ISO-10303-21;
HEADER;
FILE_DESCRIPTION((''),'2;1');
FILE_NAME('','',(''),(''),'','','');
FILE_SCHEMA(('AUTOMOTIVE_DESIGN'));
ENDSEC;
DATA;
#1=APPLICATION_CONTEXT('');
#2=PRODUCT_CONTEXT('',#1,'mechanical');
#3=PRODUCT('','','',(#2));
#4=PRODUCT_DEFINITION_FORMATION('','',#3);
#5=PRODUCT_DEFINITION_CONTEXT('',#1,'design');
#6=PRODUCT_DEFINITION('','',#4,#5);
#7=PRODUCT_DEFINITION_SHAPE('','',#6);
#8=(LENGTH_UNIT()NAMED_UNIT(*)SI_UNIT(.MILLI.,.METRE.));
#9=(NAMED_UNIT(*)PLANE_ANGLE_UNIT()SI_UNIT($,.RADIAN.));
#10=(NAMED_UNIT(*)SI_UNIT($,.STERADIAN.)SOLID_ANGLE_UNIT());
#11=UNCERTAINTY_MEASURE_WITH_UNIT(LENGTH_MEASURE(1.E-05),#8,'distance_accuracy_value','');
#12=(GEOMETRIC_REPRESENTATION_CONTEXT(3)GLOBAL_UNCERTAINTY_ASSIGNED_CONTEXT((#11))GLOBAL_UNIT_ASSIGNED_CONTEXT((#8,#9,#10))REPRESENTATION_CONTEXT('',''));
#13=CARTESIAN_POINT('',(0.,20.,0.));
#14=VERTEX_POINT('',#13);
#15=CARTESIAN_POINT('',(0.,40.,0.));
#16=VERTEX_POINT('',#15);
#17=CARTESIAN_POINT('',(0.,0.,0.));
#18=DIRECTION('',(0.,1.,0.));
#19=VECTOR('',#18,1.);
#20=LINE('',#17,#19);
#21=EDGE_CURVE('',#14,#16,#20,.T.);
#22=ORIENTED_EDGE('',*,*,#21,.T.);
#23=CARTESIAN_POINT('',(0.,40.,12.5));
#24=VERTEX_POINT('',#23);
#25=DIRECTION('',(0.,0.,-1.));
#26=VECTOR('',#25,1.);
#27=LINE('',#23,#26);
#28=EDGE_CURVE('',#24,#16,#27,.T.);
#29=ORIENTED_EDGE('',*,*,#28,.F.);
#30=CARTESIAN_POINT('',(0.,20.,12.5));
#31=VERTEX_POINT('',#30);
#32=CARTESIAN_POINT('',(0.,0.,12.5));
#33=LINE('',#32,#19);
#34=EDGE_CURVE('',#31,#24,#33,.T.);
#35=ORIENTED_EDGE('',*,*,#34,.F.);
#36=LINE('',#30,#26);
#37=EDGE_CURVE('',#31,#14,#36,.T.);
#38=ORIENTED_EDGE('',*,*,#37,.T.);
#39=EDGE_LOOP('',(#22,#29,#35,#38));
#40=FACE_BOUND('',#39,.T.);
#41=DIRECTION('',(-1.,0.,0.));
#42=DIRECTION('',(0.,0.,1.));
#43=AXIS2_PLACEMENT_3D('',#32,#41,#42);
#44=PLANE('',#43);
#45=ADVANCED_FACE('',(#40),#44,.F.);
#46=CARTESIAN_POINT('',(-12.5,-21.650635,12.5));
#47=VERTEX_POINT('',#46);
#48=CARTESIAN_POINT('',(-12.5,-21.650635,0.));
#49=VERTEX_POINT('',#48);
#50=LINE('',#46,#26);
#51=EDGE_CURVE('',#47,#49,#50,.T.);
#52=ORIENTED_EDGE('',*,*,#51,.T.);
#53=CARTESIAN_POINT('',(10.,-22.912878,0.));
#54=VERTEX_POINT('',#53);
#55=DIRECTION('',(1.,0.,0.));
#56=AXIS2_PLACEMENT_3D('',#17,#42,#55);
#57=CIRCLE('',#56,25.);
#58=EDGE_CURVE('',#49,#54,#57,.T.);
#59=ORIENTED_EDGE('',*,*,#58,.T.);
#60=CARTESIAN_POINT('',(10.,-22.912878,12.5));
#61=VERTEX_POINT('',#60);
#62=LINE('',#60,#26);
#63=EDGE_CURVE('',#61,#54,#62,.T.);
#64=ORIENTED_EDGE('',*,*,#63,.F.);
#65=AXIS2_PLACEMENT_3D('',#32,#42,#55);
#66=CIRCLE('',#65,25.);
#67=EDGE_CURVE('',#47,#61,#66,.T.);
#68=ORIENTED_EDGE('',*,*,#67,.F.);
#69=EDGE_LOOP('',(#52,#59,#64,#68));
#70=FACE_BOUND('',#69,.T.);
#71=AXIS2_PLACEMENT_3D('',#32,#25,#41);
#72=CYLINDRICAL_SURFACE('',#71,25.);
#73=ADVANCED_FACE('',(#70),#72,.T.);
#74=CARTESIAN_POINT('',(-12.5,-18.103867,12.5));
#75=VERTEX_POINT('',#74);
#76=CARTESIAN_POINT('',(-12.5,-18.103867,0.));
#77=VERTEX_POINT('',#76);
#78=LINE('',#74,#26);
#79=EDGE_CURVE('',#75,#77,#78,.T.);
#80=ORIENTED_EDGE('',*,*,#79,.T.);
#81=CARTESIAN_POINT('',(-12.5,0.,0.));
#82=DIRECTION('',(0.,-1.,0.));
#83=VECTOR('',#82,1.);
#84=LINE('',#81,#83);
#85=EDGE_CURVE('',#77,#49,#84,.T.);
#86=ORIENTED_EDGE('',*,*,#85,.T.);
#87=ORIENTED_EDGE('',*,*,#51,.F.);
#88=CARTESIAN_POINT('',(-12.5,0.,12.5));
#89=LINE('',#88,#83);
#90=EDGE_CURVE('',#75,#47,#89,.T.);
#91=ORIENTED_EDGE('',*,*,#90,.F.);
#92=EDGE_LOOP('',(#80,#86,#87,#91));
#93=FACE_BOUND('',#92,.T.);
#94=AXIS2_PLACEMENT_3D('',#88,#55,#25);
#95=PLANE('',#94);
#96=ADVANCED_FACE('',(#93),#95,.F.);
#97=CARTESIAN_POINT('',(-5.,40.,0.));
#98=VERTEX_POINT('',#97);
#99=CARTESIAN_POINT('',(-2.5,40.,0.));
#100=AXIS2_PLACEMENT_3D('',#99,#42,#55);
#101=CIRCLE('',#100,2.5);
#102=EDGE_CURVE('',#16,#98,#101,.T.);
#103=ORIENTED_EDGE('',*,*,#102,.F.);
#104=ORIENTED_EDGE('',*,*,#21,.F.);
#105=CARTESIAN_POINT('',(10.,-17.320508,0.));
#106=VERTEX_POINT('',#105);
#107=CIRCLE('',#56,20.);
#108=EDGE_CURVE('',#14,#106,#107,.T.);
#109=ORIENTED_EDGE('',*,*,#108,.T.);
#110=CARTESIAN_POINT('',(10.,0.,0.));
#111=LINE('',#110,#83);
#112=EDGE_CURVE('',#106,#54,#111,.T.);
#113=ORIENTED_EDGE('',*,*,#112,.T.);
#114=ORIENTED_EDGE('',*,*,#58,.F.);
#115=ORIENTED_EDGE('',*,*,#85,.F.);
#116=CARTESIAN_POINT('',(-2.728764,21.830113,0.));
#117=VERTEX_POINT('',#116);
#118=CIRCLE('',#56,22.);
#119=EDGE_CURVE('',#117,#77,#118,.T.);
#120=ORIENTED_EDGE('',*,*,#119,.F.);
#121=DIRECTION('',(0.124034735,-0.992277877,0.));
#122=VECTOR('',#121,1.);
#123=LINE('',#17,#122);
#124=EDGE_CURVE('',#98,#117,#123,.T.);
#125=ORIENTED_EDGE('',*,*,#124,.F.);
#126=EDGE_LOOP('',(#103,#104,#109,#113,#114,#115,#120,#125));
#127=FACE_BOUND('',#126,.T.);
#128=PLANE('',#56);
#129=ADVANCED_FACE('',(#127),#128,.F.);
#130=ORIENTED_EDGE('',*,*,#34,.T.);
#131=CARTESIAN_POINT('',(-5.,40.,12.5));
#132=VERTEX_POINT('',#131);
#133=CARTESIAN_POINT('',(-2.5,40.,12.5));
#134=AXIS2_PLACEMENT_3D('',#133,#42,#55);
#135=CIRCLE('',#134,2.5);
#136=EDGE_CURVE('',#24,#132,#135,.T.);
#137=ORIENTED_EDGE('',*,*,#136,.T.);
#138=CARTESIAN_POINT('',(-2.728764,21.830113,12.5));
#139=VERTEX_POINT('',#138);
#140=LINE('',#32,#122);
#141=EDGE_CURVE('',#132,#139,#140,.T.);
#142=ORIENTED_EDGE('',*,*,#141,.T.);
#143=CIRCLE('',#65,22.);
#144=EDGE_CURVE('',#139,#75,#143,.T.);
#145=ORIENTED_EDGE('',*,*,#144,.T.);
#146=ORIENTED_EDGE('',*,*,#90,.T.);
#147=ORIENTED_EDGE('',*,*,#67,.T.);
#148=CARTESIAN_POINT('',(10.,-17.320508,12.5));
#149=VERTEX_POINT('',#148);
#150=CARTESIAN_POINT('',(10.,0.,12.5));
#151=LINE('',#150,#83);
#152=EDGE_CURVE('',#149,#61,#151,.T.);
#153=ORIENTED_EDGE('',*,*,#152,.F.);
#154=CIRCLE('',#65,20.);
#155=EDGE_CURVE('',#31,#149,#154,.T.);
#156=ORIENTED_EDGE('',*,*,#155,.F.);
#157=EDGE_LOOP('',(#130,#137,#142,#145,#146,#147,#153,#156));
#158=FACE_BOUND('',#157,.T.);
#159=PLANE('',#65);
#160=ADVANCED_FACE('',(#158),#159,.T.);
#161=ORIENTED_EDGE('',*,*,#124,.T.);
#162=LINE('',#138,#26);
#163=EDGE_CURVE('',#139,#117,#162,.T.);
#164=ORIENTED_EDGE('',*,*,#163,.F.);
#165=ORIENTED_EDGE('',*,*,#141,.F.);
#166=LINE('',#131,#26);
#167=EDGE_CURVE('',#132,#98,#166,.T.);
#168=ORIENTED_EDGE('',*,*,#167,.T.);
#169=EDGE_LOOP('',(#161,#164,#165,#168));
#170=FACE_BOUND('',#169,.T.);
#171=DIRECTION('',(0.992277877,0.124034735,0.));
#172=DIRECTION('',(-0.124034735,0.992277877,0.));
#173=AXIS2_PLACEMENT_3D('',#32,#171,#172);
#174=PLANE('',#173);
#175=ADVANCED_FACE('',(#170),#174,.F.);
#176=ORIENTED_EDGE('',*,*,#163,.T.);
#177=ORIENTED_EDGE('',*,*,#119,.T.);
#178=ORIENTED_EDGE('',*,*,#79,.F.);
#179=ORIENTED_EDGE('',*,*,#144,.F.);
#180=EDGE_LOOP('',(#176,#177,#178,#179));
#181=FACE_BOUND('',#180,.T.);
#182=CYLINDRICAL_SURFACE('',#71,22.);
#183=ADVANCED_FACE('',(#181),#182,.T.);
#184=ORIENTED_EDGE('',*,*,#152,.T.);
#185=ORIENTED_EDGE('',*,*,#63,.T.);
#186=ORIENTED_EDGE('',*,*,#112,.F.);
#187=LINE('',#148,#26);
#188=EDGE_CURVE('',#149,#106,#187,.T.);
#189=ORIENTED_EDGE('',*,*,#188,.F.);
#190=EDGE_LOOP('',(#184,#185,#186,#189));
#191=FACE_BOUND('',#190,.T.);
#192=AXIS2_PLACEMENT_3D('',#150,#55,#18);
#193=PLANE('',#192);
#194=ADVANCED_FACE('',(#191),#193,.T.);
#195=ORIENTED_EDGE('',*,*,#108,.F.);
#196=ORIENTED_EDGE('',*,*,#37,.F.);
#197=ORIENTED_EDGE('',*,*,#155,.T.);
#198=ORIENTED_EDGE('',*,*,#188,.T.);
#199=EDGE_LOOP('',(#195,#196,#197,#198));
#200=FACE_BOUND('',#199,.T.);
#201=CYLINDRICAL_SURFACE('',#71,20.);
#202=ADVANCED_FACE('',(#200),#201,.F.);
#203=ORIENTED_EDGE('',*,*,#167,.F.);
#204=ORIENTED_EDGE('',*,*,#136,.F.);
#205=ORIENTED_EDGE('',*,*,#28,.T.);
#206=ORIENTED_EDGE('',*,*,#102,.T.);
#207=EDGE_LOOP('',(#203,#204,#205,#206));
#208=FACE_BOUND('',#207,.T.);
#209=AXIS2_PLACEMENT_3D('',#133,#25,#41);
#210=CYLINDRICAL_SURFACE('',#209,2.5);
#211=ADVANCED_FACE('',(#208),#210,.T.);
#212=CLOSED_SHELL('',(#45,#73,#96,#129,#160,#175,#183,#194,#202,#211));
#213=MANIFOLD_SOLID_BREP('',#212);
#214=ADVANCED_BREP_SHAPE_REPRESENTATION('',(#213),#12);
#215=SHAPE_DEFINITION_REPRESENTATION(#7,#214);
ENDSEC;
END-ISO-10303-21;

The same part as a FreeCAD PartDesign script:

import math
import FreeCAD as App
import Part
import Sketcher

V = App.Vector
Q = App.Units.Quantity

doc = App.newDocument("Part")
body = doc.addObject("PartDesign::Body", "Body")

sketch1 = body.newObject("Sketcher::SketchObject", "Sketch")
sketch1.AttachmentSupport = (doc.getObject("XY_Plane"), [""])
sketch1.MapMode = "FlatFace"
sketch1.addGeometry(Part.LineSegment(V(10, -22.9, 0), V(10, -17.3, 0)), False)
sketch1.addGeometry(Part.ArcOfCircle(Part.Circle(V(0, 0, 0), V(0, 0, 1), 20), math.radians(90), math.radians(300)), False)
sketch1.addGeometry(Part.LineSegment(V(0, 20, 0), V(0, 40, 0)), False)
sketch1.addGeometry(Part.ArcOfCircle(Part.Circle(V(-2.5, 40, 0), V(0, 0, 1), 2.5), math.radians(0), math.radians(180)), False)
sketch1.addGeometry(Part.LineSegment(V(-5, 40, 0), V(-4.9, 39.4, 0)), False)
sketch1.addGeometry(Part.LineSegment(V(-4.9, 39.4, 0), V(-2.7, 21.8, 0)), False)
sketch1.addGeometry(Part.ArcOfCircle(Part.Circle(V(0, 0, 0), V(0, 0, 1), 22), math.radians(97), math.radians(235)), False)
sketch1.addGeometry(Part.LineSegment(V(-12.5, -18.1, 0), V(-12.5, -21.7, 0)), False)
sketch1.addGeometry(Part.ArcOfCircle(Part.Circle(V(0, 0, 0), V(0, 0, 1), 25), math.radians(-120), math.radians(-66)), False)
sketch1.addConstraint(Sketcher.Constraint("Coincident", 0, 2, 1, 2))
sketch1.addConstraint(Sketcher.Constraint("Coincident", 1, 1, 2, 1))
sketch1.addConstraint(Sketcher.Constraint("Tangent", 2, 2, 3, 1))
sketch1.addConstraint(Sketcher.Constraint("Coincident", 3, 2, 4, 1))
sketch1.addConstraint(Sketcher.Constraint("Coincident", 4, 2, 5, 1))
sketch1.addConstraint(Sketcher.Constraint("Coincident", 5, 2, 6, 1))
sketch1.addConstraint(Sketcher.Constraint("Coincident", 6, 2, 7, 1))
sketch1.addConstraint(Sketcher.Constraint("Coincident", 7, 2, 8, 1))
sketch1.addConstraint(Sketcher.Constraint("Coincident", 8, 2, 0, 1))
sketch1.addConstraint(Sketcher.Constraint("Vertical", 0))
sketch1.addConstraint(Sketcher.Constraint("Vertical", 2))
sketch1.addConstraint(Sketcher.Constraint("Vertical", 7))
sketch1.addConstraint(Sketcher.Constraint("Coincident", 1, 3, -1, 1))
sketch1.addConstraint(Sketcher.Constraint("Coincident", 6, 3, -1, 1))
sketch1.addConstraint(Sketcher.Constraint("Coincident", 8, 3, -1, 1))
sketch1.addConstraint(Sketcher.Constraint("PointOnObject", 1, 1, -2))
sketch1.addConstraint(Sketcher.Constraint("Parallel", 4, 5))
sketch1.addConstraint(Sketcher.Constraint("Horizontal", 2, 2, 3, 2))
sketch1.addConstraint(Sketcher.Constraint("Radius", 1, Q("20 mm")))
sketch1.addConstraint(Sketcher.Constraint("Radius", 6, Q("22 mm")))
sketch1.addConstraint(Sketcher.Constraint("Radius", 8, Q("25 mm")))
sketch1.addConstraint(Sketcher.Constraint("Radius", 3, Q("2.5 mm")))
sketch1.addConstraint(Sketcher.Constraint("DistanceY", 2, 1, 2, 2, Q("20 mm")))
sketch1.addConstraint(Sketcher.Constraint("DistanceX", -1, 1, 0, 2, Q("10 mm")))
sketch1.addConstraint(Sketcher.Constraint("DistanceX", 6, 2, -1, 1, Q("12.5 mm")))
sketch1.addConstraint(Sketcher.Constraint("Distance", 4, Q("0.620174 mm")))
sketch1.addConstraint(Sketcher.Constraint("DistanceX", 4, 2, -1, 1, Q("4.923077 mm")))
pad1 = body.newObject("PartDesign::Pad", "Pad")
pad1.Profile = sketch1
pad1.Length = 12.5

doc.recompute()
